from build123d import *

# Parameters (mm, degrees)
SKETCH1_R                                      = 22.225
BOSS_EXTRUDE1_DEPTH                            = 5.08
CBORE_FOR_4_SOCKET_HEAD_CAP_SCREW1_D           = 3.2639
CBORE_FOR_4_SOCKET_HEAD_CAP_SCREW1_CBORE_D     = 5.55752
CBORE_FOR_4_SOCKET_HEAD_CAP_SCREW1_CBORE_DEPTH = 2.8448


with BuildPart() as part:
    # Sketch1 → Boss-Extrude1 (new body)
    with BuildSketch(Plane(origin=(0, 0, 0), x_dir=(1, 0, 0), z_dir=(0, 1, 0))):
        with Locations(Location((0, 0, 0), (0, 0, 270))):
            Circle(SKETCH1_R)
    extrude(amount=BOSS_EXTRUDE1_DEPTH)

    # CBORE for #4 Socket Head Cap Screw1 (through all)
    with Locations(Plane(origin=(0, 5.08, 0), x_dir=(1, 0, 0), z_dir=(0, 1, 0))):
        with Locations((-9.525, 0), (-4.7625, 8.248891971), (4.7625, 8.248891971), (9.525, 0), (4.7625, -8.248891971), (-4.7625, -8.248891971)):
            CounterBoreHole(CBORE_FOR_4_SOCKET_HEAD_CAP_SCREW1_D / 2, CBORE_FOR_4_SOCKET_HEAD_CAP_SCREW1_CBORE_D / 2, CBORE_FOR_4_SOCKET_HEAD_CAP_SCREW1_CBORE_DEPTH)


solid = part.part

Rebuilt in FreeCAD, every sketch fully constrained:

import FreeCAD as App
import Part
import Sketcher
Q = App.Units.Quantity

doc = App.newDocument("Part")
body = doc.addObject("PartDesign::Body", "Body")

sketch1 = body.newObject("Sketcher::SketchObject", "Sketch")
sketch1.AttachmentSupport = (doc.getObject("XZ_Plane"), [""])
sketch1.MapMode = "FlatFace"
sketch1.addGeometry(Part.Circle(App.Vector(0, 0, 0), App.Vector(0, 0, 1), 22), False)
sketch1.addConstraint(Sketcher.Constraint("Coincident", 0, 3, -1, 1))
sketch1.addConstraint(Sketcher.Constraint("Diameter", 0, Q("1.75 in")))
pad1 = body.newObject("PartDesign::Pad", "Pad")
pad1.Profile = sketch1
pad1.Length = Q("0.2 in")
pad1.Reversed = True

sketch2 = body.newObject("Sketcher::SketchObject", "Sketch001")
sketch2.AttachmentSupport = (doc.getObject("XZ_Plane"), [""])
sketch2.MapMode = "FlatFace"
sketch2.AttachmentOffset = App.Placement(App.Vector(0, 0, -0.2 * 25.4), App.Rotation())
sketch2.addGeometry(Part.Circle(App.Vector(-9.5, 0, 0), App.Vector(0, 0, 1), 1.6), False)
sketch2.addGeometry(Part.Circle(App.Vector(-4.8, -8.2, 0), App.Vector(0, 0, 1), 1.6), False)
sketch2.addGeometry(Part.Circle(App.Vector(4.8, -8.2, 0), App.Vector(0, 0, 1), 1.6), False)
sketch2.addGeometry(Part.Circle(App.Vector(9.5, 0, 0), App.Vector(0, 0, 1), 1.6), False)
sketch2.addGeometry(Part.Circle(App.Vector(4.8, 8.2, 0), App.Vector(0, 0, 1), 1.6), False)
sketch2.addGeometry(Part.Circle(App.Vector(-4.8, 8.2, 0), App.Vector(0, 0, 1), 1.6), False)
sketch2.addConstraint(Sketcher.Constraint("Equal", 0, 1))
sketch2.addConstraint(Sketcher.Constraint("Equal", 1, 2))
sketch2.addConstraint(Sketcher.Constraint("Equal", 2, 3))
sketch2.addConstraint(Sketcher.Constraint("Equal", 3, 4))
sketch2.addConstraint(Sketcher.Constraint("Equal", 4, 5))
sketch2.addConstraint(Sketcher.Constraint("Symmetric", 0, 3, 3, 3, -1, 1))
sketch2.addConstraint(Sketcher.Constraint("Symmetric", 1, 3, 4, 3, -1, 1))
sketch2.addConstraint(Sketcher.Constraint("Symmetric", 2, 3, 5, 3, -1, 1))
sketch2.addConstraint(Sketcher.Constraint("Symmetric", 1, 3, 2, 3, -2))
sketch2.addConstraint(Sketcher.Constraint("PointOnObject", 0, 3, -1))
sketch2.addConstraint(Sketcher.Constraint("Diameter", 0, Q("0.1285 in")))
sketch2.addConstraint(Sketcher.Constraint("DistanceX", 0, 3, 3, 3, Q("0.75 in")))
sketch2.addConstraint(Sketcher.Constraint("DistanceX", 1, 3, -1, 1, Q("0.1875 in")))
sketch2.addConstraint(Sketcher.Constraint("DistanceY", 1, 3, -1, 1, Q("8.248892 mm")))
doc.recompute()
hole = body.newObject("PartDesign::Hole", "Hole")
hole.Profile = sketch2
hole.ThreadType = "None"
hole.Diameter = Q("0.1285 in")
hole.DepthType = "ThroughAll"
hole.HoleCutType = "Counterbore"
hole.HoleCutDiameter = Q("0.2188 in")
hole.HoleCutDepth = Q("0.112 in")
hole.Reversed = True

doc.recompute()
